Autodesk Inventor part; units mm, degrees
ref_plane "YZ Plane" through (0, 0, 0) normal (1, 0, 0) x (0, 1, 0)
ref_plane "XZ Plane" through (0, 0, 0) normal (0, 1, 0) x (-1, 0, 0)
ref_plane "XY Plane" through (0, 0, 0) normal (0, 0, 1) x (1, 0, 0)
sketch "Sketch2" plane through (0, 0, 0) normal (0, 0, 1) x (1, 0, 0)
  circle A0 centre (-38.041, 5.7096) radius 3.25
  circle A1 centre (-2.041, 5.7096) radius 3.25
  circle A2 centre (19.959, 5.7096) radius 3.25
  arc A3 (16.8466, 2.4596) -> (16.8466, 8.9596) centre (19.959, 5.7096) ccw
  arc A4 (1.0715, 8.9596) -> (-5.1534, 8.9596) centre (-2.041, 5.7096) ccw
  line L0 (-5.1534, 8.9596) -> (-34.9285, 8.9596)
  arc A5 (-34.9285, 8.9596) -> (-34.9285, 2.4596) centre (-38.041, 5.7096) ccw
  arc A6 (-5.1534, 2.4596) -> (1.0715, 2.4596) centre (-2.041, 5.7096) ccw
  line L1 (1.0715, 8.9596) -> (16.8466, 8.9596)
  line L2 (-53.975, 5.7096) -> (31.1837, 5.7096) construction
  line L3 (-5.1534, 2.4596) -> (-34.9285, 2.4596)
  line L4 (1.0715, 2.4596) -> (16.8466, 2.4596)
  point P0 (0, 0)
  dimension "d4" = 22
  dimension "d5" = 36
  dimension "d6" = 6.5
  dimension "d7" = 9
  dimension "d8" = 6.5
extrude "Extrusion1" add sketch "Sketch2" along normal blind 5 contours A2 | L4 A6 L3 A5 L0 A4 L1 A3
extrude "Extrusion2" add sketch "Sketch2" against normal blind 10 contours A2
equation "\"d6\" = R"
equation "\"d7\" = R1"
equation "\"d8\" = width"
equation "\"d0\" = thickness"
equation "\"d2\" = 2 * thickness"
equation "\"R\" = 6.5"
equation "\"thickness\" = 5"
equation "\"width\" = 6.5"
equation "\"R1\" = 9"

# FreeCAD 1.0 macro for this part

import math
import FreeCAD as App
import Part
import Sketcher
from FreeCAD import Vector

doc = App.newDocument("Part")
body = doc.addObject("PartDesign::Body", "Body")

sketch1 = body.newObject("Sketcher::SketchObject", "Sketch")
sketch1.AttachmentSupport = (doc.getObject("XY_Plane"), [""])
sketch1.MapMode = "FlatFace"
sketch1.addGeometry([
    Part.LineSegment(Vector(1.0715, 2.4596, 0), Vector(16.8466, 2.4596, 0)),
    Part.ArcOfCircle(Part.Circle(Vector(19.959, 5.7096, 0), Vector(0, 0, 1), 4.499948), math.radians(-133.761054), math.radians(133.761054)),
    Part.LineSegment(Vector(16.8466, 8.9596, 0), Vector(1.0715, 8.9596, 0)),
    Part.ArcOfCircle(Part.Circle(Vector(-2.041, 5.7096, 0), Vector(0, 0, 1), 4.499948), math.radians(46.238026), math.radians(133.761054)),
    Part.LineSegment(Vector(-5.1534, 8.9596, 0), Vector(-34.9285, 8.9596, 0)),
    Part.ArcOfCircle(Part.Circle(Vector(-38.041, 5.7096, 0), Vector(0, 0, 1), 4.500017), math.radians(46.238026), math.radians(313.761974)),
    Part.LineSegment(Vector(-34.9285, 2.4596, 0), Vector(-5.1534, 2.4596, 0)),
    Part.ArcOfCircle(Part.Circle(Vector(-2.041, 5.7096, 0), Vector(0, 0, 1), 4.500017), math.radians(-133.761054), math.radians(-46.238026)),
    Part.Circle(Vector(-38.041, 5.7096, 0), Vector(0, 0, 1), 3.25),
    Part.Circle(Vector(-2.041, 5.7096, 0), Vector(0, 0, 1), 3.25),
], False)
sketch1.addConstraint([
    Sketcher.Constraint("Coincident", 0, 2, 1, 1),
    Sketcher.Constraint("Coincident", 1, 2, 2, 1),
    Sketcher.Constraint("Coincident", 2, 2, 3, 1),
    Sketcher.Constraint("Coincident", 3, 2, 4, 1),
    Sketcher.Constraint("Coincident", 4, 2, 5, 1),
    Sketcher.Constraint("Coincident", 5, 2, 6, 1),
    Sketcher.Constraint("Coincident", 6, 2, 7, 1),
    Sketcher.Constraint("Coincident", 7, 2, 0, 1),
    Sketcher.Constraint("Horizontal", 0),
    Sketcher.Constraint("Horizontal", 2),
    Sketcher.Constraint("Horizontal", 4),
    Sketcher.Constraint("Horizontal", 6),
    Sketcher.Constraint("Coincident", 7, 3, 3, 3),
    Sketcher.Constraint("Coincident", 8, 3, 5, 3),
    Sketcher.Constraint("Coincident", 9, 3, 3, 3),
    Sketcher.Constraint("Equal", 1, 3),
    Sketcher.Constraint("Equal", 3, 5),
    Sketcher.Constraint("Equal", 5, 7),
    Sketcher.Constraint("Equal", 8, 9),
    Sketcher.Constraint("Horizontal", 1, 3, 3, 3),
    Sketcher.Constraint("Horizontal", 3, 3, 5, 3),
    Sketcher.Constraint("Horizontal", 2, 2, 3, 2),
    Sketcher.Constraint("Horizontal", 0, 2, 5, 2),
    Sketcher.Constraint("Vertical", 0, 2, 1, 2),
    Sketcher.Constraint("Diameter", 8, 6.5),
    Sketcher.Constraint("Radius", 1, 4.5),
    Sketcher.Constraint("DistanceX", 3, 3, 1, 3, 22.0),
    Sketcher.Constraint("DistanceX", 5, 3, 3, 3, 36.0),
    Sketcher.Constraint("DistanceY", 0, 2, 1, 2, 6.5),
    Sketcher.Constraint("DistanceX", -1, 1, 1, 3, 19.959),
    Sketcher.Constraint("DistanceY", -1, 1, 1, 3, 5.7096),
])
pad1 = body.newObject("PartDesign::Pad", "Pad")
pad1.Profile = sketch1
pad1.Length = 5

sketch2 = body.newObject("Sketcher::SketchObject", "Sketch001")
sketch2.AttachmentSupport = (doc.getObject("XY_Plane"), [""])
sketch2.MapMode = "FlatFace"
sketch2.addGeometry(Part.Circle(Vector(19.959, 5.7096, 0), Vector(0, 0, 1), 3.25), False)
sketch2.addConstraint([
    Sketcher.Constraint("Diameter", 0, 6.5),
    Sketcher.Constraint("DistanceX", -1, 1, 0, 3, 19.959),
    Sketcher.Constraint("DistanceY", -1, 1, 0, 3, 5.7096),
])
pad2 = body.newObject("PartDesign::Pad", "Pad001")
pad2.Profile = sketch2
pad2.Length = 10
pad2.Reversed = True

doc.recompute()
